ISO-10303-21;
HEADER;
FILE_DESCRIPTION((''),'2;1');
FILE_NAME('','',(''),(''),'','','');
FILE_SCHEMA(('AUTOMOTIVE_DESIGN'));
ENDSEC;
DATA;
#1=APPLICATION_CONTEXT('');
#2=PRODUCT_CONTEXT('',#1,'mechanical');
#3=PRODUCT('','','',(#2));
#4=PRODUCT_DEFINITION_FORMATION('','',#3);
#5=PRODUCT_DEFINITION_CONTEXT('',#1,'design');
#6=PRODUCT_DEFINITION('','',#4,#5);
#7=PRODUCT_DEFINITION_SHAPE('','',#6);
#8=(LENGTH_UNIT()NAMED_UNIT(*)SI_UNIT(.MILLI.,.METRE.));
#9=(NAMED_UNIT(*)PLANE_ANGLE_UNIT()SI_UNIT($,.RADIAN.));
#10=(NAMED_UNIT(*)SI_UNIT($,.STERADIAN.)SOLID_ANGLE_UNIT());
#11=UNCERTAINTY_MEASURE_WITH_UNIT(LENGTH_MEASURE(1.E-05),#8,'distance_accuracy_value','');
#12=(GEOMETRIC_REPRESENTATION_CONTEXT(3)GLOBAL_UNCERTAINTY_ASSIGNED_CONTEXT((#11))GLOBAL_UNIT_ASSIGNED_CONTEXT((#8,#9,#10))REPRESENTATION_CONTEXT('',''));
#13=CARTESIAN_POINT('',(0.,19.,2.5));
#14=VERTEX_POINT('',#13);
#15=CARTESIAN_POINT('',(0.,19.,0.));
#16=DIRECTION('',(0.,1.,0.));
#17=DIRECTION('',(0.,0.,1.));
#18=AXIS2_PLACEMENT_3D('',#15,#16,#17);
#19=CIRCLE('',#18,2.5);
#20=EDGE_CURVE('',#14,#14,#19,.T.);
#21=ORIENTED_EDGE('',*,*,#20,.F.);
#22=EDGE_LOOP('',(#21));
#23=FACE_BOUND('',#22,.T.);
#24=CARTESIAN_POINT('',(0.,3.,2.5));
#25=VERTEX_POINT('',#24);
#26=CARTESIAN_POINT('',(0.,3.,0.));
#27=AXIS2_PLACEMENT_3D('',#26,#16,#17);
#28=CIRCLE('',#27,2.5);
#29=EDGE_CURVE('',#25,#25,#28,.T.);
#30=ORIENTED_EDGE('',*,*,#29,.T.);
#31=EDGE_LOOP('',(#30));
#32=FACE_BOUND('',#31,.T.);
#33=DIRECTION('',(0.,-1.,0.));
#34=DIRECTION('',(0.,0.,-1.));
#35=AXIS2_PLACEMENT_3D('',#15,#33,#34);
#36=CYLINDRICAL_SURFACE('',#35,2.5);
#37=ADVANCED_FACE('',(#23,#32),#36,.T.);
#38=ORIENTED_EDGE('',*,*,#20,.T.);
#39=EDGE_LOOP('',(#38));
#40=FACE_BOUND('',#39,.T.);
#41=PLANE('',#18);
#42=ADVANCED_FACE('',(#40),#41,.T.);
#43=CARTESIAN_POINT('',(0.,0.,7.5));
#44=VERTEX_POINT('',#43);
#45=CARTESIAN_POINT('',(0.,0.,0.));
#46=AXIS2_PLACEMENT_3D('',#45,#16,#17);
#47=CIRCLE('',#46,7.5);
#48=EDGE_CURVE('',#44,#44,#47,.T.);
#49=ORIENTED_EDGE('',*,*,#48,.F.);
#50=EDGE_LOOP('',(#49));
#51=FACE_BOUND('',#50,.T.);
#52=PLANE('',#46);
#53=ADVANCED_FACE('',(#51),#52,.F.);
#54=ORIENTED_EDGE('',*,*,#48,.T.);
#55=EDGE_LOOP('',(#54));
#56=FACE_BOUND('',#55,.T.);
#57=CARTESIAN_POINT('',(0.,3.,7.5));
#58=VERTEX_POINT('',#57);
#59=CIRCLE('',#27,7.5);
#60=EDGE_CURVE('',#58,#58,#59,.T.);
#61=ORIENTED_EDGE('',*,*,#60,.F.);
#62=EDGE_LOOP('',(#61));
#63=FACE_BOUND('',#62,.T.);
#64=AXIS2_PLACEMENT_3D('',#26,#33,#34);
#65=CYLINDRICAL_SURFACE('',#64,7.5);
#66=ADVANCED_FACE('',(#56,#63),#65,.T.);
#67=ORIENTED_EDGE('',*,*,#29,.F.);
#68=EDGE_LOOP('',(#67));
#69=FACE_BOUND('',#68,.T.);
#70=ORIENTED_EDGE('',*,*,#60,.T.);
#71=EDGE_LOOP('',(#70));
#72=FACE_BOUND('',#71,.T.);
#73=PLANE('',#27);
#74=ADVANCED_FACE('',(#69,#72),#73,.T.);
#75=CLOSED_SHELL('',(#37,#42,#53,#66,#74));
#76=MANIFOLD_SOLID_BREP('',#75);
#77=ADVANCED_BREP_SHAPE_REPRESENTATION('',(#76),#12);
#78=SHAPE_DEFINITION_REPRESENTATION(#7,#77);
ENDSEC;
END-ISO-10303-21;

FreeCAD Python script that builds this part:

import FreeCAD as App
import Part
import Sketcher

V = App.Vector

doc = App.newDocument("Part")
params = doc.addObject("Spreadsheet::Sheet", "Params")
for row, (alias, value) in enumerate([
    ("sketch1_diameter", "15 mm"),
    ("pad1_length", "3 mm"),
    ("sketch2_diameter", "5 mm"),
    ("pad2_length", "16 mm"),
], start=1):
    params.set(f"A{row}", alias)
    params.set(f"B{row}", "=" + value)
    params.setAlias(f"B{row}", alias)

body = doc.addObject("PartDesign::Body", "Body")

sketch1 = body.newObject("Sketcher::SketchObject", "Sketch")
sketch1.AttachmentSupport = (doc.getObject("XZ_Plane"), [""])
sketch1.MapMode = "FlatFace"
sketch1.addGeometry(Part.Circle(V(0, 0, 0), V(0, 0, 1), 8), False)
sketch1.addConstraint(Sketcher.Constraint("Coincident", 0, 3, -1, 1))
sketch1.addConstraint(Sketcher.Constraint("Diameter", 0, 15.0))
sketch1.setExpression("Constraints[1]", "Params.sketch1_diameter")
pad1 = body.newObject("PartDesign::Pad", "Pad")
pad1.Profile = sketch1
pad1.setExpression("Length", "Params.pad1_length")
pad1.Reversed = True

sketch2 = body.newObject("Sketcher::SketchObject", "Sketch001")
sketch2.AttachmentSupport = (doc.getObject("XZ_Plane"), [""])
sketch2.MapMode = "FlatFace"
sketch2.AttachmentOffset = App.Placement(V(0, 0, -3), App.Rotation())
sketch2.addGeometry(Part.Circle(V(0, 0, 0), V(0, 0, 1), 2.5), False)
sketch2.addConstraint(Sketcher.Constraint("Coincident", 0, 3, -1, 1))
sketch2.addConstraint(Sketcher.Constraint("Diameter", 0, 5.0))
sketch2.setExpression("Constraints[1]", "Params.sketch2_diameter")
pad2 = body.newObject("PartDesign::Pad", "Pad001")
pad2.Profile = sketch2
pad2.setExpression("Length", "Params.pad2_length")
pad2.Reversed = True

doc.recompute()
